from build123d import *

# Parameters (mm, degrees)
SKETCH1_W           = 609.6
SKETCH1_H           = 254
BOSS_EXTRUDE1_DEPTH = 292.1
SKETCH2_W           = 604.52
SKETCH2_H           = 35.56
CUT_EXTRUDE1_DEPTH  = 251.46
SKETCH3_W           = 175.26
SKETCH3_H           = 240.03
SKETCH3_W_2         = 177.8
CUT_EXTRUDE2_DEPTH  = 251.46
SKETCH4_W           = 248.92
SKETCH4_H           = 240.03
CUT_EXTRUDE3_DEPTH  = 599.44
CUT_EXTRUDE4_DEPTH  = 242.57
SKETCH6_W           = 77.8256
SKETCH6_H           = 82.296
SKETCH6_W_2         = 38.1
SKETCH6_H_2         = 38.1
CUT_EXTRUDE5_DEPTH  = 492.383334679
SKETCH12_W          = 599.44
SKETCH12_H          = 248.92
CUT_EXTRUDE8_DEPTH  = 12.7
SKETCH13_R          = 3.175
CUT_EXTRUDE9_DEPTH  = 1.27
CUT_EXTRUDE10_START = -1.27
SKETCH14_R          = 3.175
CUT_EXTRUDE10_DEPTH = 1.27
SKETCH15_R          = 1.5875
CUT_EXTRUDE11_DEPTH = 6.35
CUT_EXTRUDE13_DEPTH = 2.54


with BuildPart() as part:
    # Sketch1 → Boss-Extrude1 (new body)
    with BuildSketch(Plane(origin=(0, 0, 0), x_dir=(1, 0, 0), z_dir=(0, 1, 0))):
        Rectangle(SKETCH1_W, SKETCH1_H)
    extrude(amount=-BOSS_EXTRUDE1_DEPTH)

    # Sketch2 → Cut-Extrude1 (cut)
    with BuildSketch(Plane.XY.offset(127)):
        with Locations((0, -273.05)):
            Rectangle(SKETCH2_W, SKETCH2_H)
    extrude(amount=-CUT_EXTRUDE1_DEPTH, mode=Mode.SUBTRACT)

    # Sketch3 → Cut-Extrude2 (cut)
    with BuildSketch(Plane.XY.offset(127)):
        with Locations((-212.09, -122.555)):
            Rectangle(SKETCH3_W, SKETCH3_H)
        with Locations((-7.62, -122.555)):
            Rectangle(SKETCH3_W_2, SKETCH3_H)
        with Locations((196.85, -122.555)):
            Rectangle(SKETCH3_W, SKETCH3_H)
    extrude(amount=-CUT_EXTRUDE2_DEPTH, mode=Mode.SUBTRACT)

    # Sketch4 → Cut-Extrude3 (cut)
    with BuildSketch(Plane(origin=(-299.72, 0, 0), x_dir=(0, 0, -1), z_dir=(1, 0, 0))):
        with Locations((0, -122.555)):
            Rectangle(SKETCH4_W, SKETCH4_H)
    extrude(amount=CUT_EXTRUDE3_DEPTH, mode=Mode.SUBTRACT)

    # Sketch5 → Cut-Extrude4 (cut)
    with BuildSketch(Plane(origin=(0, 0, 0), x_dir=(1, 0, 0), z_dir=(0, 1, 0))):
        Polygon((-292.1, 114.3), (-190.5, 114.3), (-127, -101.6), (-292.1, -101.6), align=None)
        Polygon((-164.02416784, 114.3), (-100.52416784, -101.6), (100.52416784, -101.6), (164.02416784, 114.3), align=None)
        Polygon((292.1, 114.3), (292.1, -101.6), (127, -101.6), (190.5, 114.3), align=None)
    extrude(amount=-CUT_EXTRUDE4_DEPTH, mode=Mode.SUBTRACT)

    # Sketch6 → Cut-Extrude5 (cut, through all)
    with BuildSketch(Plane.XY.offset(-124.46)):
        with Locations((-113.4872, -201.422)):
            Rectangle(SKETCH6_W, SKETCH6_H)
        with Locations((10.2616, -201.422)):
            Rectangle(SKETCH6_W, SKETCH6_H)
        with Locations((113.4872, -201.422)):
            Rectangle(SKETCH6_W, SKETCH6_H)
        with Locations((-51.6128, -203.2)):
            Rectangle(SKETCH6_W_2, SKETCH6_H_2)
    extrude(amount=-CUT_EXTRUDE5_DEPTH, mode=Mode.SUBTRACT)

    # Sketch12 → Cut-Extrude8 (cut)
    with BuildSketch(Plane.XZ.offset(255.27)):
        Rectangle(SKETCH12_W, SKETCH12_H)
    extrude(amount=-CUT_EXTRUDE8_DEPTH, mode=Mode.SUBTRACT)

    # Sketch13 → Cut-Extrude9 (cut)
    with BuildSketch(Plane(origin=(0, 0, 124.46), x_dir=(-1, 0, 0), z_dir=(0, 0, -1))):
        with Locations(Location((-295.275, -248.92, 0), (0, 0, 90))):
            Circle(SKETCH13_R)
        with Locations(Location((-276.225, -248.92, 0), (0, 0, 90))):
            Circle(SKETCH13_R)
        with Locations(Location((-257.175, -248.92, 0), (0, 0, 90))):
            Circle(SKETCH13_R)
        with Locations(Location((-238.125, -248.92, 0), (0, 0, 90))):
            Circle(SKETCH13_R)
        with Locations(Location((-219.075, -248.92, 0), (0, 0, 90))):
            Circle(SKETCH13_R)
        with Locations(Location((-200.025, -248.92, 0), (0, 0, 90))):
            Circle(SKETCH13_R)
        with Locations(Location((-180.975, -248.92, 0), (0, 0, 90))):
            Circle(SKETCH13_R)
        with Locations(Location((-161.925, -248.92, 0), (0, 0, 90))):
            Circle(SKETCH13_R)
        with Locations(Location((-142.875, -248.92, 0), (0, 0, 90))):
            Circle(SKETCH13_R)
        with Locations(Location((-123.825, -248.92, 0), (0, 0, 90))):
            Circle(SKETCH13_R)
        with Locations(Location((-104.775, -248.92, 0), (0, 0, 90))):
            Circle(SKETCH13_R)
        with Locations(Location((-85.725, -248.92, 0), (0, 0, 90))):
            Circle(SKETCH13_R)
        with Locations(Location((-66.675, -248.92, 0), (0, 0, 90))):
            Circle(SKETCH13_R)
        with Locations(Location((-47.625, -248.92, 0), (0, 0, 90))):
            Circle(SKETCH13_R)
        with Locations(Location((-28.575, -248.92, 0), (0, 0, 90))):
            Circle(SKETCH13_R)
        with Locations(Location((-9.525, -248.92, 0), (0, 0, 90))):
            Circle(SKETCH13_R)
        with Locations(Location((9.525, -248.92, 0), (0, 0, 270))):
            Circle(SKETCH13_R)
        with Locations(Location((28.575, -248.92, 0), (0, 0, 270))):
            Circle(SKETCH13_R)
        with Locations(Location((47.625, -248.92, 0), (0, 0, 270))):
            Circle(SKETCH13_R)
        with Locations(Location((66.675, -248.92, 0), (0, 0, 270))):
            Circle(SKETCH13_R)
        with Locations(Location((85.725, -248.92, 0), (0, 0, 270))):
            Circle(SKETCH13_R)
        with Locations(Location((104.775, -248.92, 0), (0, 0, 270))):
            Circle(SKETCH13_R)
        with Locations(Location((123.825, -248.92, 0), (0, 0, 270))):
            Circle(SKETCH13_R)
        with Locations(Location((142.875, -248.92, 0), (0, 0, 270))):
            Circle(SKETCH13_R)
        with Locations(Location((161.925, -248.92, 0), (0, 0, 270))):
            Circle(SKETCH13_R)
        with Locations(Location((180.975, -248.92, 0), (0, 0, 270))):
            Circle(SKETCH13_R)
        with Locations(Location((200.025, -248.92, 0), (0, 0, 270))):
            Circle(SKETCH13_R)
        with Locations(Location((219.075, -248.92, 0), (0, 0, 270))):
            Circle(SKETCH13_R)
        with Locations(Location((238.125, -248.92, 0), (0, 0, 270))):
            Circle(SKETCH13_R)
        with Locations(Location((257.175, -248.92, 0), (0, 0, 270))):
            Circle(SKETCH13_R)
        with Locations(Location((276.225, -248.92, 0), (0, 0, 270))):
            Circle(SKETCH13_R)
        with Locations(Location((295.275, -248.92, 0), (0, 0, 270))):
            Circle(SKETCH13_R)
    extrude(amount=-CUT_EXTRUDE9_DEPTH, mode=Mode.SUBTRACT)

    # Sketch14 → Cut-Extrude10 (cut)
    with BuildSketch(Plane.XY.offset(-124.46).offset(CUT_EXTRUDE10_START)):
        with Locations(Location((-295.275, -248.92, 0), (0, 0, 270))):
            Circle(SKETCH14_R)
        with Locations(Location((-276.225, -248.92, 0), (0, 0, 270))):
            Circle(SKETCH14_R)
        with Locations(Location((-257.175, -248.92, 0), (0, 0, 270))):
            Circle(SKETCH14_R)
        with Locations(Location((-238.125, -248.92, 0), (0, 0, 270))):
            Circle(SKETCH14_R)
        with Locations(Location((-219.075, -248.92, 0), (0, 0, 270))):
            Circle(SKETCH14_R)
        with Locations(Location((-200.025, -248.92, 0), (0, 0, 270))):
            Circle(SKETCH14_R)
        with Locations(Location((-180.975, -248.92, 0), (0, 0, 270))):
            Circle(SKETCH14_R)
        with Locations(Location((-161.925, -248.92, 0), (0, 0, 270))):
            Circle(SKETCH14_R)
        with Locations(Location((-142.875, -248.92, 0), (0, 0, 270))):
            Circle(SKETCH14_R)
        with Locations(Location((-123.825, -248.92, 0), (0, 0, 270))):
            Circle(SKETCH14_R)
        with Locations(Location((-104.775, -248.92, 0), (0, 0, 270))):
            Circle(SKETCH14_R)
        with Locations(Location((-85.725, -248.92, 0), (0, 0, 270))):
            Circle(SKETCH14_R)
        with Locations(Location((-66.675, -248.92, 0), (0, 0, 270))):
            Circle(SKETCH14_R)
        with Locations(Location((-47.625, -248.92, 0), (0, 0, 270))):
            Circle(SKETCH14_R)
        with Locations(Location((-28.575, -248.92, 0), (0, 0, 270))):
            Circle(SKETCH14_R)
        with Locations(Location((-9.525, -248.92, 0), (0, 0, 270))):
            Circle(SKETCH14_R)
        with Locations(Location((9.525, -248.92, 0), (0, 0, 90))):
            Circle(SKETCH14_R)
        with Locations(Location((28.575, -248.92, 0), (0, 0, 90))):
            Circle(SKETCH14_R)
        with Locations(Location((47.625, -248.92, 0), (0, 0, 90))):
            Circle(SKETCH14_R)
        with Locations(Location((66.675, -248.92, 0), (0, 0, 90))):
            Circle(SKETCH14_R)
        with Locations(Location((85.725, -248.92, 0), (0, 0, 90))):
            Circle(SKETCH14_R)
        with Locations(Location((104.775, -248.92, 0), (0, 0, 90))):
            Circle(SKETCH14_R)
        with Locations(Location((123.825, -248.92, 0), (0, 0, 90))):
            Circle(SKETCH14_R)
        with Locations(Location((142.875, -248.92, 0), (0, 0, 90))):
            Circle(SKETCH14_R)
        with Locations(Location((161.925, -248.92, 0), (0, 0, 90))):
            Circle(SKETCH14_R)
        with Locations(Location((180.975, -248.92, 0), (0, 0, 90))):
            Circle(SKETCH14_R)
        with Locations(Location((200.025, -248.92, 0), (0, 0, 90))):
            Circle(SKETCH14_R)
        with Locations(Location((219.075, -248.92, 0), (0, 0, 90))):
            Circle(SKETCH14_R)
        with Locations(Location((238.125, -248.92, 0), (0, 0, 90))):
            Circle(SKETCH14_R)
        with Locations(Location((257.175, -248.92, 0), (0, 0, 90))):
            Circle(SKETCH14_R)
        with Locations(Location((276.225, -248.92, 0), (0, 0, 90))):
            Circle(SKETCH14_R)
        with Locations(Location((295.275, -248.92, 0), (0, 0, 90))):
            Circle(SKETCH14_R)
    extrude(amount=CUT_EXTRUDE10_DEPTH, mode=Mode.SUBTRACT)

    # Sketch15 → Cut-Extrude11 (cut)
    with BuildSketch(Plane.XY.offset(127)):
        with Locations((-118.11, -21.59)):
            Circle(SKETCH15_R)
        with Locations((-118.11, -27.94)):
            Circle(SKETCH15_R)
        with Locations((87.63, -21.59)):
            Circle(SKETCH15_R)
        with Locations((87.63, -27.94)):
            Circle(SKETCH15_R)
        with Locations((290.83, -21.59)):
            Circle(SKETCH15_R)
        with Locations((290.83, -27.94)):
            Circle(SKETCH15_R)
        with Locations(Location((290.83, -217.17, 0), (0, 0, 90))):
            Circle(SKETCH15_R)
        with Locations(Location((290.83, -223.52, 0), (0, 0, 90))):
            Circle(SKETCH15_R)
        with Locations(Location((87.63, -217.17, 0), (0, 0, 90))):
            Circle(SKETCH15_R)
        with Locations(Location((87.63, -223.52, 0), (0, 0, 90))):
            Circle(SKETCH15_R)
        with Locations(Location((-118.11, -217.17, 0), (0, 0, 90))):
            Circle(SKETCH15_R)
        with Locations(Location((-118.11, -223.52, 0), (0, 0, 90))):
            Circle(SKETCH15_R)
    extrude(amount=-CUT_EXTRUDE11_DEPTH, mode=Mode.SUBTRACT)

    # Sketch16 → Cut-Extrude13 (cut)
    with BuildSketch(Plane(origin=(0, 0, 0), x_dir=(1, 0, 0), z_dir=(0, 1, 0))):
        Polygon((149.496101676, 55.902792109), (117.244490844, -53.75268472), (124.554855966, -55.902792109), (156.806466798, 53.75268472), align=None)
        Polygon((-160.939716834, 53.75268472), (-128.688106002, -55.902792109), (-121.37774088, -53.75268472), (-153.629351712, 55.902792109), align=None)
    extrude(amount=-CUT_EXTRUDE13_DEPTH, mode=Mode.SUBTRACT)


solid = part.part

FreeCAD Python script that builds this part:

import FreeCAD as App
import Part
import Sketcher
from FreeCAD import Vector
Q = App.Units.Quantity


def add_polygon(sketch, points):
    """Adds a closed chain of lines whose ends are joined by coincident constraints."""
    first, n = sketch.GeometryCount, len(points)
    for a, b in zip(points, points[1:] + points[:1]):
        sketch.addGeometry(Part.LineSegment(App.Vector(*a, 0), App.Vector(*b, 0)), False)
    for i in range(n):
        sketch.addConstraint(Sketcher.Constraint("Coincident", first + i, 2, first + (i + 1) % n, 1))

doc = App.newDocument("Part")
body = doc.addObject("PartDesign::Body", "Body")

# Sketch on XZ plane
sketch1 = body.newObject("Sketcher::SketchObject", "Sketch")
sketch1.AttachmentSupport = (doc.getObject("XZ_Plane"), [""])
sketch1.MapMode = "FlatFace"
add_polygon(sketch1, [(-305, -127), (-305, 127), (305, 127), (305, -127)])  # lines 0-3
sketch1.addConstraint(Sketcher.Constraint("Vertical", 0))
sketch1.addConstraint(Sketcher.Constraint("Horizontal", 1))
sketch1.addConstraint(Sketcher.Constraint("Vertical", 2))
sketch1.addConstraint(Sketcher.Constraint("Horizontal", 3))
sketch1.addConstraint(Sketcher.Constraint("Symmetric", 0, 2, 2, 2, -1, 1))
sketch1.addConstraint(Sketcher.Constraint("DistanceX", 1, 1, 1, 2, Q("24 in")))
sketch1.addConstraint(Sketcher.Constraint("DistanceY", 0, 1, 0, 2, Q("10 in")))
pad1 = body.newObject("PartDesign::Pad", "Pad")
pad1.Profile = sketch1
pad1.Length = Q("11.5 in")

# Sketch on XY plane
sketch2 = body.newObject("Sketcher::SketchObject", "Sketch001")
sketch2.AttachmentSupport = (doc.getObject("XY_Plane"), [""])
sketch2.MapMode = "FlatFace"
sketch2.AttachmentOffset = App.Placement(Vector(0, 0, 5 * 25.4), App.Rotation())
add_polygon(sketch2, [(-302, -255), (-302, -291), (302, -291), (302, -255)])  # lines 0-3
sketch2.addConstraint(Sketcher.Constraint("Vertical", 0))
sketch2.addConstraint(Sketcher.Constraint("Horizontal", 1))
sketch2.addConstraint(Sketcher.Constraint("Vertical", 2))
sketch2.addConstraint(Sketcher.Constraint("Horizontal", 3))
sketch2.addConstraint(Sketcher.Constraint("DistanceX", 1, 1, 1, 2, Q("23.8 in")))
sketch2.addConstraint(Sketcher.Constraint("DistanceY", 0, 2, 0, 1, Q("1.4 in")))
sketch2.addConstraint(Sketcher.Constraint("DistanceX", 0, 2, -1, 1, Q("11.9 in")))
sketch2.addConstraint(Sketcher.Constraint("DistanceY", 0, 2, -1, 1, Q("11.45 in")))
pocket1 = body.newObject("PartDesign::Pocket", "Pocket")
pocket1.Profile = sketch2
pocket1.Length = Q("9.9 in")

# Sketch on XY plane
sketch3 = body.newObject("Sketcher::SketchObject", "Sketch002")
sketch3.AttachmentSupport = (doc.getObject("XY_Plane"), [""])
sketch3.MapMode = "FlatFace"
sketch3.AttachmentOffset = App.Placement(Vector(0, 0, 5 * 25.4), App.Rotation())
add_polygon(sketch3, [(-300, -3), (-300, -243), (-124, -243), (-124, -3)])  # lines 0-3
add_polygon(sketch3, [(-97, -3), (-97, -243), (81, -243), (81, -3)])  # lines 4-7
add_polygon(sketch3, [(109, -3), (109, -243), (284, -243), (284, -3)])  # lines 8-11
sketch3.addConstraint(Sketcher.Constraint("Vertical", 0))
sketch3.addConstraint(Sketcher.Constraint("Horizontal", 1))
sketch3.addConstraint(Sketcher.Constraint("Vertical", 2))
sketch3.addConstraint(Sketcher.Constraint("Horizontal", 3))
sketch3.addConstraint(Sketcher.Constraint("Vertical", 4))
sketch3.addConstraint(Sketcher.Constraint("Horizontal", 5))
sketch3.addConstraint(Sketcher.Constraint("Vertical", 6))
sketch3.addConstraint(Sketcher.Constraint("Horizontal", 7))
sketch3.addConstraint(Sketcher.Constraint("Vertical", 8))
sketch3.addConstraint(Sketcher.Constraint("Horizontal", 9))
sketch3.addConstraint(Sketcher.Constraint("Vertical", 10))
sketch3.addConstraint(Sketcher.Constraint("Horizontal", 11))
sketch3.addConstraint(Sketcher.Constraint("Horizontal", 1, 2, 4, 2))
sketch3.addConstraint(Sketcher.Constraint("Horizontal", 3, 2, 6, 2))
sketch3.addConstraint(Sketcher.Constraint("Horizontal", 5, 2, 8, 2))
sketch3.addConstraint(Sketcher.Constraint("Horizontal", 7, 2, 10, 2))
sketch3.addConstraint(Sketcher.Constraint("Equal", 3, 9))
sketch3.addConstraint(Sketcher.Constraint("DistanceX", 5, 1, 5, 2, Q("7 in")))
sketch3.addConstraint(Sketcher.Constraint("DistanceX", 1, 1, 1, 2, Q("6.9 in")))
sketch3.addConstraint(Sketcher.Constraint("DistanceX", 0, 2, 4, 2, Q("8 in")))
sketch3.addConstraint(Sketcher.Constraint("DistanceX", 5, 2, 9, 2, Q("8 in")))
sketch3.addConstraint(Sketcher.Constraint("DistanceY", 0, 2, 0, 1, Q("9.45 in")))
sketch3.addConstraint(Sketcher.Constraint("DistanceX", 0, 2, -1, 1, Q("11.8 in")))
sketch3.addConstraint(Sketcher.Constraint("DistanceY", 2, 2, -1, 1, Q("0.1 in")))
pocket2 = body.newObject("PartDesign::Pocket", "Pocket001")
pocket2.Profile = sketch3
pocket2.Length = Q("9.9 in")

# Sketch on YZ plane
sketch4 = body.newObject("Sketcher::SketchObject", "Sketch003")
sketch4.AttachmentSupport = (doc.getObject("YZ_Plane"), [""])
sketch4.MapMode = "FlatFace"
sketch4.AttachmentOffset = App.Placement(Vector(0, 0, -11.8 * 25.4), App.Rotation())
add_polygon(sketch4, [(-3, 124), (-243, 124), (-243, -124), (-3, -124)])  # lines 0-3
sketch4.addConstraint(Sketcher.Constraint("Horizontal", 0))
sketch4.addConstraint(Sketcher.Constraint("Vertical", 1))
sketch4.addConstraint(Sketcher.Constraint("Horizontal", 2))
sketch4.addConstraint(Sketcher.Constraint("Vertical", 3))
sketch4.addConstraint(Sketcher.Constraint("DistanceY", 1, 2, 1, 1, Q("9.8 in")))
sketch4.addConstraint(Sketcher.Constraint("DistanceX", 0, 2, 0, 1, Q("9.45 in")))
sketch4.addConstraint(Sketcher.Constraint("DistanceY", -1, 1, 0, 2, Q("4.9 in")))
sketch4.addConstraint(Sketcher.Constraint("DistanceX", 2, 2, -1, 1, Q("0.1 in")))
pocket3 = body.newObject("PartDesign::Pocket", "Pocket002")
pocket3.Profile = sketch4
pocket3.Length = Q("23.6 in")
pocket3.Reversed = True

# Sketch on XZ plane
sketch5 = body.newObject("Sketcher::SketchObject", "Sketch004")
sketch5.AttachmentSupport = (doc.getObject("XZ_Plane"), [""])
sketch5.MapMode = "FlatFace"
add_polygon(sketch5, [(-190, -114), (-292, -114), (-292, 102), (-127, 102)])  # lines 0-3
add_polygon(sketch5, [(-164, -114), (-101, 102), (101, 102), (164, -114)])  # lines 4-7
add_polygon(sketch5, [(292, 102), (292, -114), (190, -114), (127, 102)])  # lines 8-11
sketch5.addConstraint(Sketcher.Constraint("Horizontal", 0))
sketch5.addConstraint(Sketcher.Constraint("Vertical", 1))
sketch5.addConstraint(Sketcher.Constraint("Horizontal", 2))
sketch5.addConstraint(Sketcher.Constraint("Horizontal", 5))
sketch5.addConstraint(Sketcher.Constraint("Horizontal", 7))
sketch5.addConstraint(Sketcher.Constraint("Vertical", 8))
sketch5.addConstraint(Sketcher.Constraint("Horizontal", 9))
sketch5.addConstraint(Sketcher.Constraint("Horizontal", 11))
sketch5.addConstraint(Sketcher.Constraint("Symmetric", 0, 2, 8, 2, -2))
sketch5.addConstraint(Sketcher.Constraint("Symmetric", 2, 2, 10, 2, -2))
sketch5.addConstraint(Sketcher.Constraint("Parallel", 3, 4))
sketch5.addConstraint(Sketcher.Constraint("Parallel", 6, 10))
sketch5.addConstraint(Sketcher.Constraint("Horizontal", 2, 2, 4, 2))
sketch5.addConstraint(Sketcher.Constraint("Horizontal", 3, 2, 6, 2))
sketch5.addConstraint(Sketcher.Constraint("Equal", 0, 9))
sketch5.addConstraint(Sketcher.Constraint("DistanceX", 0, 2, 0, 1, Q("4 in")))
sketch5.addConstraint(Sketcher.Constraint("DistanceX", 2, 1, 2, 2, Q("6.5 in")))
sketch5.addConstraint(Sketcher.Constraint("DistanceY", 1, 1, 1, 2, Q("8.5 in")))
sketch5.addConstraint(Sketcher.Constraint("DistanceY", -1, 1, 1, 2, Q("4 in")))
sketch5.addConstraint(Sketcher.Constraint("DistanceX", 2, 2, -1, 1, Q("5 in")))
sketch5.addConstraint(Sketcher.Constraint("DistanceX", 5, 1, 5, 2, Q("201.048336 mm")))
sketch5.addConstraint(Sketcher.Constraint("DistanceX", 4, 2, -1, 1, Q("100.524168 mm")))
pocket4 = body.newObject("PartDesign::Pocket", "Pocket003")
pocket4.Profile = sketch5
pocket4.Length = Q("9.55 in")
pocket4.Reversed = True

# Sketch on XY plane
sketch6 = body.newObject("Sketcher::SketchObject", "Sketch005")
sketch6.AttachmentSupport = (doc.getObject("XY_Plane"), [""])
sketch6.MapMode = "FlatFace"
sketch6.AttachmentOffset = App.Placement(Vector(0, 0, -4.9 * 25.4), App.Rotation())
add_polygon(sketch6, [(-152, -160), (-152, -243), (-75, -243), (-75, -160)])  # lines 0-3
add_polygon(sketch6, [(-29, -160), (-29, -243), (49, -243), (49, -160)])  # lines 4-7
add_polygon(sketch6, [(75, -160), (75, -243), (152, -243), (152, -160)])  # lines 8-11
add_polygon(sketch6, [(-71, -184), (-71, -222), (-33, -222), (-33, -184)])  # lines 12-15
sketch6.addConstraint(Sketcher.Constraint("Vertical", 0))
sketch6.addConstraint(Sketcher.Constraint("Horizontal", 1))
sketch6.addConstraint(Sketcher.Constraint("Vertical", 2))
sketch6.addConstraint(Sketcher.Constraint("Horizontal", 3))
sketch6.addConstraint(Sketcher.Constraint("Vertical", 4))
sketch6.addConstraint(Sketcher.Constraint("Horizontal", 5))
sketch6.addConstraint(Sketcher.Constraint("Vertical", 6))
sketch6.addConstraint(Sketcher.Constraint("Horizontal", 7))
sketch6.addConstraint(Sketcher.Constraint("Vertical", 8))
sketch6.addConstraint(Sketcher.Constraint("Horizontal", 9))
sketch6.addConstraint(Sketcher.Constraint("Vertical", 10))
sketch6.addConstraint(Sketcher.Constraint("Horizontal", 11))
sketch6.addConstraint(Sketcher.Constraint("Vertical", 12))
sketch6.addConstraint(Sketcher.Constraint("Horizontal", 13))
sketch6.addConstraint(Sketcher.Constraint("Vertical", 14))
sketch6.addConstraint(Sketcher.Constraint("Horizontal", 15))
sketch6.addConstraint(Sketcher.Constraint("Symmetric", 1, 2, 8, 2, -2))
sketch6.addConstraint(Sketcher.Constraint("Symmetric", 3, 2, 10, 2, -2))
sketch6.addConstraint(Sketcher.Constraint("Horizontal", 1, 2, 4, 2))
sketch6.addConstraint(Sketcher.Constraint("Horizontal", 3, 2, 6, 2))
sketch6.addConstraint(Sketcher.Constraint("Equal", 3, 5))
sketch6.addConstraint(Sketcher.Constraint("Equal", 15, 12))
sketch6.addConstraint(Sketcher.Constraint("DistanceX", 13, 1, 13, 2, Q("1.5 in")))
sketch6.addConstraint(Sketcher.Constraint("DistanceX", 0, 2, -1, 1, Q("6 in")))
sketch6.addConstraint(Sketcher.Constraint("DistanceX", 5, 2, 8, 2, Q("1 in")))
sketch6.addConstraint(Sketcher.Constraint("DistanceY", 0, 2, 0, 1, Q("3.24 in")))
sketch6.addConstraint(Sketcher.Constraint("DistanceY", 1, 2, 12, 2, Q("0.8 in")))
sketch6.addConstraint(Sketcher.Constraint("DistanceX", 1, 1, 1, 2, Q("3.064 in")))
sketch6.addConstraint(Sketcher.Constraint("DistanceY", 0, 2, -1, 1, Q("9.55 in")))
sketch6.addConstraint(Sketcher.Constraint("DistanceX", 12, 2, -1, 1, Q("2.782 in")))
pocket5 = body.newObject("PartDesign::Pocket", "Pocket004")
pocket5.Profile = sketch6
pocket5.Type = "ThroughAll"

# Sketch on XZ plane
sketch7 = body.newObject("Sketcher::SketchObject", "Sketch006")
sketch7.AttachmentSupport = (doc.getObject("XZ_Plane"), [""])
sketch7.MapMode = "FlatFace"
sketch7.AttachmentOffset = App.Placement(Vector(0, 0, 10.05 * 25.4), App.Rotation())
add_polygon(sketch7, [(-300, 124), (-300, -124), (300, -124), (300, 124)])  # lines 0-3
sketch7.addConstraint(Sketcher.Constraint("Vertical", 0))
sketch7.addConstraint(Sketcher.Constraint("Horizontal", 1))
sketch7.addConstraint(Sketcher.Constraint("Vertical", 2))
sketch7.addConstraint(Sketcher.Constraint("Horizontal", 3))
sketch7.addConstraint(Sketcher.Constraint("Symmetric", 0, 2, 2, 2, -1, 1))
sketch7.addConstraint(Sketcher.Constraint("DistanceX", 1, 1, 1, 2, Q("23.6 in")))
sketch7.addConstraint(Sketcher.Constraint("DistanceY", 0, 2, 0, 1, Q("9.8 in")))
pocket6 = body.newObject("PartDesign::Pocket", "Pocket005")
pocket6.Profile = sketch7
pocket6.Length = Q("0.5 in")

# Sketch on XY plane
sketch8 = body.newObject("Sketcher::SketchObject", "Sketch007")
sketch8.AttachmentSupport = (doc.getObject("XY_Plane"), [""])
sketch8.MapMode = "FlatFace"
sketch8.AttachmentOffset = App.Placement(Vector(0, 0, 4.9 * 25.4), App.Rotation())
sketch8.addGeometry(Part.Circle(Vector(295.3, -248.9, 0), Vector(0, 0, 1), 3.2), False)
sketch8.addGeometry(Part.Circle(Vector(276.2, -248.9, 0), Vector(0, 0, 1), 3.2), False)
sketch8.addGeometry(Part.Circle(Vector(257.2, -248.9, 0), Vector(0, 0, 1), 3.2), False)
sketch8.addGeometry(Part.Circle(Vector(238.1, -248.9, 0), Vector(0, 0, 1), 3.2), False)
sketch8.addGeometry(Part.Circle(Vector(219.1, -248.9, 0), Vector(0, 0, 1), 3.2), False)
sketch8.addGeometry(Part.Circle(Vector(200, -248.9, 0), Vector(0, 0, 1), 3.2), False)
sketch8.addGeometry(Part.Circle(Vector(181, -248.9, 0), Vector(0, 0, 1), 3.2), False)
sketch8.addGeometry(Part.Circle(Vector(161.9, -248.9, 0), Vector(0, 0, 1), 3.2), False)
sketch8.addGeometry(Part.Circle(Vector(142.9, -248.9, 0), Vector(0, 0, 1), 3.2), False)
sketch8.addGeometry(Part.Circle(Vector(123.8, -248.9, 0), Vector(0, 0, 1), 3.2), False)
sketch8.addGeometry(Part.Circle(Vector(104.8, -248.9, 0), Vector(0, 0, 1), 3.2), False)
sketch8.addGeometry(Part.Circle(Vector(85.7, -248.9, 0), Vector(0, 0, 1), 3.2), False)
sketch8.addGeometry(Part.Circle(Vector(66.7, -248.9, 0), Vector(0, 0, 1), 3.2), False)
sketch8.addGeometry(Part.Circle(Vector(47.6, -248.9, 0), Vector(0, 0, 1), 3.2), False)
sketch8.addGeometry(Part.Circle(Vector(28.6, -248.9, 0), Vector(0, 0, 1), 3.2), False)
sketch8.addGeometry(Part.Circle(Vector(9.5, -248.9, 0), Vector(0, 0, 1), 3.2), False)
sketch8.addGeometry(Part.Circle(Vector(-9.5, -248.9, 0), Vector(0, 0, 1), 3.2), False)
sketch8.addGeometry(Part.Circle(Vector(-28.6, -248.9, 0), Vector(0, 0, 1), 3.2), False)
sketch8.addGeometry(Part.Circle(Vector(-47.6, -248.9, 0), Vector(0, 0, 1), 3.2), False)
sketch8.addGeometry(Part.Circle(Vector(-66.7, -248.9, 0), Vector(0, 0, 1), 3.2), False)
sketch8.addGeometry(Part.Circle(Vector(-85.7, -248.9, 0), Vector(0, 0, 1), 3.2), False)
sketch8.addGeometry(Part.Circle(Vector(-104.8, -248.9, 0), Vector(0, 0, 1), 3.2), False)
sketch8.addGeometry(Part.Circle(Vector(-123.8, -248.9, 0), Vector(0, 0, 1), 3.2), False)
sketch8.addGeometry(Part.Circle(Vector(-142.9, -248.9, 0), Vector(0, 0, 1), 3.2), False)
sketch8.addGeometry(Part.Circle(Vector(-161.9, -248.9, 0), Vector(0, 0, 1), 3.2), False)
sketch8.addGeometry(Part.Circle(Vector(-181, -248.9, 0), Vector(0, 0, 1), 3.2), False)
sketch8.addGeometry(Part.Circle(Vector(-200, -248.9, 0), Vector(0, 0, 1), 3.2), False)
sketch8.addGeometry(Part.Circle(Vector(-219.1, -248.9, 0), Vector(0, 0, 1), 3.2), False)
sketch8.addGeometry(Part.Circle(Vector(-238.1, -248.9, 0), Vector(0, 0, 1), 3.2), False)
sketch8.addGeometry(Part.Circle(Vector(-257.2, -248.9, 0), Vector(0, 0, 1), 3.2), False)
sketch8.addGeometry(Part.Circle(Vector(-276.2, -248.9, 0), Vector(0, 0, 1), 3.2), False)
sketch8.addGeometry(Part.Circle(Vector(-295.3, -248.9, 0), Vector(0, 0, 1), 3.2), False)
sketch8.addConstraint(Sketcher.Constraint("Equal", 0, 1))
sketch8.addConstraint(Sketcher.Constraint("Equal", 1, 2))
sketch8.addConstraint(Sketcher.Constraint("Equal", 2, 3))
sketch8.addConstraint(Sketcher.Constraint("Equal", 3, 4))
sketch8.addConstraint(Sketcher.Constraint("Equal", 4, 5))
sketch8.addConstraint(Sketcher.Constraint("Equal", 5, 6))
sketch8.addConstraint(Sketcher.Constraint("Equal", 6, 7))
sketch8.addConstraint(Sketcher.Constraint("Equal", 7, 8))
sketch8.addConstraint(Sketcher.Constraint("Equal", 8, 9))
sketch8.addConstraint(Sketcher.Constraint("Equal", 9, 10))
sketch8.addConstraint(Sketcher.Constraint("Equal", 10, 11))
sketch8.addConstraint(Sketcher.Constraint("Equal", 11, 12))
sketch8.addConstraint(Sketcher.Constraint("Equal", 12, 13))
sketch8.addConstraint(Sketcher.Constraint("Equal", 13, 14))
sketch8.addConstraint(Sketcher.Constraint("Equal", 14, 15))
sketch8.addConstraint(Sketcher.Constraint("Equal", 15, 16))
sketch8.addConstraint(Sketcher.Constraint("Equal", 16, 17))
sketch8.addConstraint(Sketcher.Constraint("Equal", 17, 18))
sketch8.addConstraint(Sketcher.Constraint("Equal", 18, 19))
sketch8.addConstraint(Sketcher.Constraint("Equal", 19, 20))
sketch8.addConstraint(Sketcher.Constraint("Equal", 20, 21))
sketch8.addConstraint(Sketcher.Constraint("Equal", 21, 22))
sketch8.addConstraint(Sketcher.Constraint("Equal", 22, 23))
sketch8.addConstraint(Sketcher.Constraint("Equal", 23, 24))
sketch8.addConstraint(Sketcher.Constraint("Equal", 24, 25))
sketch8.addConstraint(Sketcher.Constraint("Equal", 25, 26))
sketch8.addConstraint(Sketcher.Constraint("Equal", 26, 27))
sketch8.addConstraint(Sketcher.Constraint("Equal", 27, 28))
sketch8.addConstraint(Sketcher.Constraint("Equal", 28, 29))
sketch8.addConstraint(Sketcher.Constraint("Equal", 29, 30))
sketch8.addConstraint(Sketcher.Constraint("Equal", 30, 31))
sketch8.addConstraint(Sketcher.Constraint("Symmetric", 15, 3, 16, 3, -2))
sketch8.addConstraint(Sketcher.Constraint("Symmetric", 14, 3, 17, 3, -2))
sketch8.addConstraint(Sketcher.Constraint("Symmetric", 13, 3, 18, 3, -2))
sketch8.addConstraint(Sketcher.Constraint("Symmetric", 12, 3, 19, 3, -2))
sketch8.addConstraint(Sketcher.Constraint("Symmetric", 11, 3, 20, 3, -2))
sketch8.addConstraint(Sketcher.Constraint("Symmetric", 10, 3, 21, 3, -2))
sketch8.addConstraint(Sketcher.Constraint("Symmetric", 9, 3, 22, 3, -2))
sketch8.addConstraint(Sketcher.Constraint("Symmetric", 8, 3, 23, 3, -2))
sketch8.addConstraint(Sketcher.Constraint("Symmetric", 7, 3, 24, 3, -2))
sketch8.addConstraint(Sketcher.Constraint("Symmetric", 6, 3, 25, 3, -2))
sketch8.addConstraint(Sketcher.Constraint("Symmetric", 5, 3, 26, 3, -2))
sketch8.addConstraint(Sketcher.Constraint("Symmetric", 4, 3, 27, 3, -2))
sketch8.addConstraint(Sketcher.Constraint("Symmetric", 3, 3, 28, 3, -2))
sketch8.addConstraint(Sketcher.Constraint("Symmetric", 2, 3, 29, 3, -2))
sketch8.addConstraint(Sketcher.Constraint("Symmetric", 1, 3, 30, 3, -2))
sketch8.addConstraint(Sketcher.Constraint("Symmetric", 0, 3, 31, 3, -2))
sketch8.addConstraint(Sketcher.Constraint("Horizontal", 0, 3, 1, 3))
sketch8.addConstraint(Sketcher.Constraint("Horizontal", 1, 3, 2, 3))
sketch8.addConstraint(Sketcher.Constraint("Horizontal", 2, 3, 3, 3))
sketch8.addConstraint(Sketcher.Constraint("Horizontal", 3, 3, 4, 3))
sketch8.addConstraint(Sketcher.Constraint("Horizontal", 4, 3, 5, 3))
sketch8.addConstraint(Sketcher.Constraint("Horizontal", 5, 3, 6, 3))
sketch8.addConstraint(Sketcher.Constraint("Horizontal", 6, 3, 7, 3))
sketch8.addConstraint(Sketcher.Constraint("Horizontal", 7, 3, 8, 3))
sketch8.addConstraint(Sketcher.Constraint("Horizontal", 8, 3, 9, 3))
sketch8.addConstraint(Sketcher.Constraint("Horizontal", 9, 3, 10, 3))
sketch8.addConstraint(Sketcher.Constraint("Horizontal", 10, 3, 11, 3))
sketch8.addConstraint(Sketcher.Constraint("Horizontal", 11, 3, 12, 3))
sketch8.addConstraint(Sketcher.Constraint("Horizontal", 12, 3, 13, 3))
sketch8.addConstraint(Sketcher.Constraint("Horizontal", 13, 3, 14, 3))
sketch8.addConstraint(Sketcher.Constraint("Horizontal", 14, 3, 15, 3))
sketch8.addConstraint(Sketcher.Constraint("Diameter", 0, Q("0.25 in")))
sketch8.addConstraint(Sketcher.Constraint("DistanceX", 4, 3, 0, 3, Q("3 in")))
sketch8.addConstraint(Sketcher.Constraint("DistanceX", 5, 3, 1, 3, Q("3 in")))
sketch8.addConstraint(Sketcher.Constraint("DistanceX", 6, 3, 2, 3, Q("3 in")))
sketch8.addConstraint(Sketcher.Constraint("DistanceX", 7, 3, 3, 3, Q("3 in")))
sketch8.addConstraint(Sketcher.Constraint("DistanceX", 8, 3, 4, 3, Q("3 in")))
sketch8.addConstraint(Sketcher.Constraint("DistanceX", 9, 3, 5, 3, Q("3 in")))
sketch8.addConstraint(Sketcher.Constraint("DistanceX", 10, 3, 6, 3, Q("3 in")))
sketch8.addConstraint(Sketcher.Constraint("DistanceX", 11, 3, 7, 3, Q("3 in")))
sketch8.addConstraint(Sketcher.Constraint("DistanceX", 12, 3, 8, 3, Q("3 in")))
sketch8.addConstraint(Sketcher.Constraint("DistanceX", 13, 3, 9, 3, Q("3 in")))
sketch8.addConstraint(Sketcher.Constraint("DistanceX", 14, 3, 10, 3, Q("3 in")))
sketch8.addConstraint(Sketcher.Constraint("DistanceX", 15, 3, 11, 3, Q("3 in")))
sketch8.addConstraint(Sketcher.Constraint("DistanceX", 16, 3, 12, 3, Q("3 in")))
sketch8.addConstraint(Sketcher.Constraint("DistanceX", 17, 3, 13, 3, Q("3 in")))
sketch8.addConstraint(Sketcher.Constraint("DistanceY", 0, 3, -1, 1, Q("9.8 in")))
sketch8.addConstraint(Sketcher.Constraint("DistanceX", 2, 3, 0, 3, Q("1.5 in")))
sketch8.addConstraint(Sketcher.Constraint("DistanceX", 1, 3, 0, 3, Q("0.75 in")))
pocket7 = body.newObject("PartDesign::Pocket", "Pocket006")
pocket7.Profile = sketch8
pocket7.Length = Q("0.05 in")
pocket7.Reversed = True

# Sketch on XY plane
sketch9 = body.newObject("Sketcher::SketchObject", "Sketch008")
sketch9.AttachmentSupport = (doc.getObject("XY_Plane"), [""])
sketch9.MapMode = "FlatFace"
sketch9.AttachmentOffset = App.Placement(Vector(0, 0, -4.95 * 25.4), App.Rotation())
sketch9.addGeometry(Part.Circle(Vector(-295.3, -248.9, 0), Vector(0, 0, 1), 3.2), False)
sketch9.addGeometry(Part.Circle(Vector(-276.2, -248.9, 0), Vector(0, 0, 1), 3.2), False)
sketch9.addGeometry(Part.Circle(Vector(-257.2, -248.9, 0), Vector(0, 0, 1), 3.2), False)
sketch9.addGeometry(Part.Circle(Vector(-238.1, -248.9, 0), Vector(0, 0, 1), 3.2), False)
sketch9.addGeometry(Part.Circle(Vector(-219.1, -248.9, 0), Vector(0, 0, 1), 3.2), False)
sketch9.addGeometry(Part.Circle(Vector(-200, -248.9, 0), Vector(0, 0, 1), 3.2), False)
sketch9.addGeometry(Part.Circle(Vector(-181, -248.9, 0), Vector(0, 0, 1), 3.2), False)
sketch9.addGeometry(Part.Circle(Vector(-161.9, -248.9, 0), Vector(0, 0, 1), 3.2), False)
sketch9.addGeometry(Part.Circle(Vector(-142.9, -248.9, 0), Vector(0, 0, 1), 3.2), False)
sketch9.addGeometry(Part.Circle(Vector(-123.8, -248.9, 0), Vector(0, 0, 1), 3.2), False)
sketch9.addGeometry(Part.Circle(Vector(-104.8, -248.9, 0), Vector(0, 0, 1), 3.2), False)
sketch9.addGeometry(Part.Circle(Vector(-85.7, -248.9, 0), Vector(0, 0, 1), 3.2), False)
sketch9.addGeometry(Part.Circle(Vector(-66.7, -248.9, 0), Vector(0, 0, 1), 3.2), False)
sketch9.addGeometry(Part.Circle(Vector(-47.6, -248.9, 0), Vector(0, 0, 1), 3.2), False)
sketch9.addGeometry(Part.Circle(Vector(-28.6, -248.9, 0), Vector(0, 0, 1), 3.2), False)
sketch9.addGeometry(Part.Circle(Vector(-9.5, -248.9, 0), Vector(0, 0, 1), 3.2), False)
sketch9.addGeometry(Part.Circle(Vector(9.5, -248.9, 0), Vector(0, 0, 1), 3.2), False)
sketch9.addGeometry(Part.Circle(Vector(28.6, -248.9, 0), Vector(0, 0, 1), 3.2), False)
sketch9.addGeometry(Part.Circle(Vector(47.6, -248.9, 0), Vector(0, 0, 1), 3.2), False)
sketch9.addGeometry(Part.Circle(Vector(66.7, -248.9, 0), Vector(0, 0, 1), 3.2), False)
sketch9.addGeometry(Part.Circle(Vector(85.7, -248.9, 0), Vector(0, 0, 1), 3.2), False)
sketch9.addGeometry(Part.Circle(Vector(104.8, -248.9, 0), Vector(0, 0, 1), 3.2), False)
sketch9.addGeometry(Part.Circle(Vector(123.8, -248.9, 0), Vector(0, 0, 1), 3.2), False)
sketch9.addGeometry(Part.Circle(Vector(142.9, -248.9, 0), Vector(0, 0, 1), 3.2), False)
sketch9.addGeometry(Part.Circle(Vector(161.9, -248.9, 0), Vector(0, 0, 1), 3.2), False)
sketch9.addGeometry(Part.Circle(Vector(181, -248.9, 0), Vector(0, 0, 1), 3.2), False)
sketch9.addGeometry(Part.Circle(Vector(200, -248.9, 0), Vector(0, 0, 1), 3.2), False)
sketch9.addGeometry(Part.Circle(Vector(219.1, -248.9, 0), Vector(0, 0, 1), 3.2), False)
sketch9.addGeometry(Part.Circle(Vector(238.1, -248.9, 0), Vector(0, 0, 1), 3.2), False)
sketch9.addGeometry(Part.Circle(Vector(257.2, -248.9, 0), Vector(0, 0, 1), 3.2), False)
sketch9.addGeometry(Part.Circle(Vector(276.2, -248.9, 0), Vector(0, 0, 1), 3.2), False)
sketch9.addGeometry(Part.Circle(Vector(295.3, -248.9, 0), Vector(0, 0, 1), 3.2), False)
sketch9.addConstraint(Sketcher.Constraint("Equal", 0, 1))
sketch9.addConstraint(Sketcher.Constraint("Equal", 1, 2))
sketch9.addConstraint(Sketcher.Constraint("Equal", 2, 3))
sketch9.addConstraint(Sketcher.Constraint("Equal", 3, 4))
sketch9.addConstraint(Sketcher.Constraint("Equal", 4, 5))
sketch9.addConstraint(Sketcher.Constraint("Equal", 5, 6))
sketch9.addConstraint(Sketcher.Constraint("Equal", 6, 7))
sketch9.addConstraint(Sketcher.Constraint("Equal", 7, 8))
sketch9.addConstraint(Sketcher.Constraint("Equal", 8, 9))
sketch9.addConstraint(Sketcher.Constraint("Equal", 9, 10))
sketch9.addConstraint(Sketcher.Constraint("Equal", 10, 11))
sketch9.addConstraint(Sketcher.Constraint("Equal", 11, 12))
sketch9.addConstraint(Sketcher.Constraint("Equal", 12, 13))
sketch9.addConstraint(Sketcher.Constraint("Equal", 13, 14))
sketch9.addConstraint(Sketcher.Constraint("Equal", 14, 15))
sketch9.addConstraint(Sketcher.Constraint("Equal", 15, 16))
sketch9.addConstraint(Sketcher.Constraint("Equal", 16, 17))
sketch9.addConstraint(Sketcher.Constraint("Equal", 17, 18))
sketch9.addConstraint(Sketcher.Constraint("Equal", 18, 19))
sketch9.addConstraint(Sketcher.Constraint("Equal", 19, 20))
sketch9.addConstraint(Sketcher.Constraint("Equal", 20, 21))
sketch9.addConstraint(Sketcher.Constraint("Equal", 21, 22))
sketch9.addConstraint(Sketcher.Constraint("Equal", 22, 23))
sketch9.addConstraint(Sketcher.Constraint("Equal", 23, 24))
sketch9.addConstraint(Sketcher.Constraint("Equal", 24, 25))
sketch9.addConstraint(Sketcher.Constraint("Equal", 25, 26))
sketch9.addConstraint(Sketcher.Constraint("Equal", 26, 27))
sketch9.addConstraint(Sketcher.Constraint("Equal", 27, 28))
sketch9.addConstraint(Sketcher.Constraint("Equal", 28, 29))
sketch9.addConstraint(Sketcher.Constraint("Equal", 29, 30))
sketch9.addConstraint(Sketcher.Constraint("Equal", 30, 31))
sketch9.addConstraint(Sketcher.Constraint("Symmetric", 15, 3, 16, 3, -2))
sketch9.addConstraint(Sketcher.Constraint("Symmetric", 14, 3, 17, 3, -2))
sketch9.addConstraint(Sketcher.Constraint("Symmetric", 13, 3, 18, 3, -2))
sketch9.addConstraint(Sketcher.Constraint("Symmetric", 12, 3, 19, 3, -2))
sketch9.addConstraint(Sketcher.Constraint("Symmetric", 11, 3, 20, 3, -2))
sketch9.addConstraint(Sketcher.Constraint("Symmetric", 10, 3, 21, 3, -2))
sketch9.addConstraint(Sketcher.Constraint("Symmetric", 9, 3, 22, 3, -2))
sketch9.addConstraint(Sketcher.Constraint("Symmetric", 8, 3, 23, 3, -2))
sketch9.addConstraint(Sketcher.Constraint("Symmetric", 7, 3, 24, 3, -2))
sketch9.addConstraint(Sketcher.Constraint("Symmetric", 6, 3, 25, 3, -2))
sketch9.addConstraint(Sketcher.Constraint("Symmetric", 5, 3, 26, 3, -2))
sketch9.addConstraint(Sketcher.Constraint("Symmetric", 4, 3, 27, 3, -2))
sketch9.addConstraint(Sketcher.Constraint("Symmetric", 3, 3, 28, 3, -2))
sketch9.addConstraint(Sketcher.Constraint("Symmetric", 2, 3, 29, 3, -2))
sketch9.addConstraint(Sketcher.Constraint("Symmetric", 1, 3, 30, 3, -2))
sketch9.addConstraint(Sketcher.Constraint("Symmetric", 0, 3, 31, 3, -2))
sketch9.addConstraint(Sketcher.Constraint("Horizontal", 0, 3, 1, 3))
sketch9.addConstraint(Sketcher.Constraint("Horizontal", 1, 3, 2, 3))
sketch9.addConstraint(Sketcher.Constraint("Horizontal", 2, 3, 3, 3))
sketch9.addConstraint(Sketcher.Constraint("Horizontal", 3, 3, 4, 3))
sketch9.addConstraint(Sketcher.Constraint("Horizontal", 4, 3, 5, 3))
sketch9.addConstraint(Sketcher.Constraint("Horizontal", 5, 3, 6, 3))
sketch9.addConstraint(Sketcher.Constraint("Horizontal", 6, 3, 7, 3))
sketch9.addConstraint(Sketcher.Constraint("Horizontal", 7, 3, 8, 3))
sketch9.addConstraint(Sketcher.Constraint("Horizontal", 8, 3, 9, 3))
sketch9.addConstraint(Sketcher.Constraint("Horizontal", 9, 3, 10, 3))
sketch9.addConstraint(Sketcher.Constraint("Horizontal", 10, 3, 11, 3))
sketch9.addConstraint(Sketcher.Constraint("Horizontal", 11, 3, 12, 3))
sketch9.addConstraint(Sketcher.Constraint("Horizontal", 12, 3, 13, 3))
sketch9.addConstraint(Sketcher.Constraint("Horizontal", 13, 3, 14, 3))
sketch9.addConstraint(Sketcher.Constraint("Horizontal", 14, 3, 15, 3))
sketch9.addConstraint(Sketcher.Constraint("Diameter", 0, Q("0.25 in")))
sketch9.addConstraint(Sketcher.Constraint("DistanceX", 0, 3, 4, 3, Q("3 in")))
sketch9.addConstraint(Sketcher.Constraint("DistanceX", 1, 3, 5, 3, Q("3 in")))
sketch9.addConstraint(Sketcher.Constraint("DistanceX", 2, 3, 6, 3, Q("3 in")))
sketch9.addConstraint(Sketcher.Constraint("DistanceX", 3, 3, 7, 3, Q("3 in")))
sketch9.addConstraint(Sketcher.Constraint("DistanceX", 4, 3, 8, 3, Q("3 in")))
sketch9.addConstraint(Sketcher.Constraint("DistanceX", 5, 3, 9, 3, Q("3 in")))
sketch9.addConstraint(Sketcher.Constraint("DistanceX", 6, 3, 10, 3, Q("3 in")))
sketch9.addConstraint(Sketcher.Constraint("DistanceX", 7, 3, 11, 3, Q("3 in")))
sketch9.addConstraint(Sketcher.Constraint("DistanceX", 8, 3, 12, 3, Q("3 in")))
sketch9.addConstraint(Sketcher.Constraint("DistanceX", 9, 3, 13, 3, Q("3 in")))
sketch9.addConstraint(Sketcher.Constraint("DistanceX", 10, 3, 14, 3, Q("3 in")))
sketch9.addConstraint(Sketcher.Constraint("DistanceX", 11, 3, 15, 3, Q("3 in")))
sketch9.addConstraint(Sketcher.Constraint("DistanceX", 12, 3, 16, 3, Q("3 in")))
sketch9.addConstraint(Sketcher.Constraint("DistanceX", 13, 3, 17, 3, Q("3 in")))
sketch9.addConstraint(Sketcher.Constraint("DistanceY", 0, 3, -1, 1, Q("9.8 in")))
sketch9.addConstraint(Sketcher.Constraint("DistanceX", 0, 3, 2, 3, Q("1.5 in")))
sketch9.addConstraint(Sketcher.Constraint("DistanceX", 0, 3, 1, 3, Q("0.75 in")))
pocket8 = body.newObject("PartDesign::Pocket", "Pocket007")
pocket8.Profile = sketch9
pocket8.Length = Q("0.05 in")
pocket8.Reversed = True

# Sketch on XY plane
sketch10 = body.newObject("Sketcher::SketchObject", "Sketch009")
sketch10.AttachmentSupport = (doc.getObject("XY_Plane"), [""])
sketch10.MapMode = "FlatFace"
sketch10.AttachmentOffset = App.Placement(Vector(0, 0, 5 * 25.4), App.Rotation())
sketch10.addGeometry(Part.Circle(Vector(-118.1, -21.6, 0), Vector(0, 0, 1), 1.6), False)
sketch10.addGeometry(Part.Circle(Vector(-118.1, -27.9, 0), Vector(0, 0, 1), 1.6), False)
sketch10.addGeometry(Part.Circle(Vector(87.6, -21.6, 0), Vector(0, 0, 1), 1.6), False)
sketch10.addGeometry(Part.Circle(Vector(87.6, -27.9, 0), Vector(0, 0, 1), 1.6), False)
sketch10.addGeometry(Part.Circle(Vector(290.8, -21.6, 0), Vector(0, 0, 1), 1.6), False)
sketch10.addGeometry(Part.Circle(Vector(290.8, -27.9, 0), Vector(0, 0, 1), 1.6), False)
sketch10.addGeometry(Part.Circle(Vector(290.8, -217.2, 0), Vector(0, 0, 1), 1.6), False)
sketch10.addGeometry(Part.Circle(Vector(290.8, -223.5, 0), Vector(0, 0, 1), 1.6), False)
sketch10.addGeometry(Part.Circle(Vector(87.6, -217.2, 0), Vector(0, 0, 1), 1.6), False)
sketch10.addGeometry(Part.Circle(Vector(87.6, -223.5, 0), Vector(0, 0, 1), 1.6), False)
sketch10.addGeometry(Part.Circle(Vector(-118.1, -217.2, 0), Vector(0, 0, 1), 1.6), False)
sketch10.addGeometry(Part.Circle(Vector(-118.1, -223.5, 0), Vector(0, 0, 1), 1.6), False)
sketch10.addConstraint(Sketcher.Constraint("Equal", 0, 1))
sketch10.addConstraint(Sketcher.Constraint("Equal", 1, 2))
sketch10.addConstraint(Sketcher.Constraint("Equal", 2, 3))
sketch10.addConstraint(Sketcher.Constraint("Equal", 3, 4))
sketch10.addConstraint(Sketcher.Constraint("Equal", 4, 5))
sketch10.addConstraint(Sketcher.Constraint("Equal", 5, 6))
sketch10.addConstraint(Sketcher.Constraint("Equal", 6, 7))
sketch10.addConstraint(Sketcher.Constraint("Equal", 7, 8))
sketch10.addConstraint(Sketcher.Constraint("Equal", 8, 9))
sketch10.addConstraint(Sketcher.Constraint("Equal", 9, 10))
sketch10.addConstraint(Sketcher.Constraint("Equal", 10, 11))
sketch10.addConstraint(Sketcher.Constraint("Horizontal", 0, 3, 2, 3))
sketch10.addConstraint(Sketcher.Constraint("Horizontal", 1, 3, 3, 3))
sketch10.addConstraint(Sketcher.Constraint("Horizontal", 2, 3, 4, 3))
sketch10.addConstraint(Sketcher.Constraint("Horizontal", 3, 3, 5, 3))
sketch10.addConstraint(Sketcher.Constraint("Horizontal", 6, 3, 8, 3))
sketch10.addConstraint(Sketcher.Constraint("Horizontal", 7, 3, 9, 3))
sketch10.addConstraint(Sketcher.Constraint("Horizontal", 8, 3, 10, 3))
sketch10.addConstraint(Sketcher.Constraint("Horizontal", 9, 3, 11, 3))
sketch10.addConstraint(Sketcher.Constraint("Vertical", 0, 3, 1, 3))
sketch10.addConstraint(Sketcher.Constraint("Vertical", 2, 3, 3, 3))
sketch10.addConstraint(Sketcher.Constraint("Vertical", 4, 3, 5, 3))
sketch10.addConstraint(Sketcher.Constraint("Vertical", 5, 3, 6, 3))
sketch10.addConstraint(Sketcher.Constraint("Vertical", 6, 3, 7, 3))
sketch10.addConstraint(Sketcher.Constraint("Vertical", 3, 3, 8, 3))
sketch10.addConstraint(Sketcher.Constraint("Vertical", 8, 3, 9, 3))
sketch10.addConstraint(Sketcher.Constraint("Vertical", 1, 3, 10, 3))
sketch10.addConstraint(Sketcher.Constraint("Vertical", 10, 3, 11, 3))
sketch10.addConstraint(Sketcher.Constraint("Diameter", 0, Q("0.125 in")))
sketch10.addConstraint(Sketcher.Constraint("DistanceX", 2, 3, 4, 3, Q("8 in")))
sketch10.addConstraint(Sketcher.Constraint("DistanceY", 1, 3, -1, 1, Q("1.1 in")))
sketch10.addConstraint(Sketcher.Constraint("DistanceY", 7, 3, -1, 1, Q("8.8 in")))
sketch10.addConstraint(Sketcher.Constraint("DistanceX", 0, 3, 2, 3, Q("8.1 in")))
sketch10.addConstraint(Sketcher.Constraint("DistanceY", 6, 3, 4, 3, Q("7.7 in")))
sketch10.addConstraint(Sketcher.Constraint("DistanceX", 0, 3, -1, 1, Q("4.65 in")))
sketch10.addConstraint(Sketcher.Constraint("DistanceY", 0, 3, -1, 1, Q("0.85 in")))
pocket9 = body.newObject("PartDesign::Pocket", "Pocket008")
pocket9.Profile = sketch10
pocket9.Length = Q("0.25 in")

# Sketch on XZ plane
sketch11 = body.newObject("Sketcher::SketchObject", "Sketch010")
sketch11.AttachmentSupport = (doc.getObject("XZ_Plane"), [""])
sketch11.MapMode = "FlatFace"
add_polygon(sketch11, [(149, -56), (117, 54), (125, 56), (157, -54)])  # lines 0-3
add_polygon(sketch11, [(-161, -54), (-129, 56), (-121, 54), (-154, -56)])  # lines 4-7
sketch11.addConstraint(Sketcher.Constraint("Perpendicular", 0, 1))
sketch11.addConstraint(Sketcher.Constraint("Perpendicular", 1, 2))
sketch11.addConstraint(Sketcher.Constraint("Perpendicular", 2, 3))
sketch11.addConstraint(Sketcher.Constraint("Perpendicular", 4, 5))
sketch11.addConstraint(Sketcher.Constraint("Perpendicular", 5, 6))
sketch11.addConstraint(Sketcher.Constraint("Perpendicular", 6, 7))
sketch11.addConstraint(Sketcher.Constraint("Horizontal", 1, 2, 4, 2))
sketch11.addConstraint(Sketcher.Constraint("Horizontal", 0, 2, 5, 2))
sketch11.addConstraint(Sketcher.Constraint("Horizontal", 3, 2, 6, 2))
sketch11.addConstraint(Sketcher.Constraint("Equal", 2, 4))
sketch11.addConstraint(Sketcher.Constraint("Distance", 0, Q("4.5 in")))
sketch11.addConstraint(Sketcher.Constraint("Distance", 1, Q("0.3 in")))
sketch11.addConstraint(Sketcher.Constraint("DistanceX", -1, 1, 3, 2, Q("149.496102 mm")))
sketch11.addConstraint(Sketcher.Constraint("DistanceX", -1, 1, 0, 2, Q("117.244491 mm")))
sketch11.addConstraint(Sketcher.Constraint("DistanceX", 5, 2, -1, 1, Q("121.377741 mm")))
sketch11.addConstraint(Sketcher.Constraint("DistanceY", -1, 1, 0, 2, Q("53.752685 mm")))
pocket10 = body.newObject("PartDesign::Pocket", "Pocket009")
pocket10.Profile = sketch11
pocket10.Length = Q("0.1 in")
pocket10.Reversed = True

doc.recompute()
